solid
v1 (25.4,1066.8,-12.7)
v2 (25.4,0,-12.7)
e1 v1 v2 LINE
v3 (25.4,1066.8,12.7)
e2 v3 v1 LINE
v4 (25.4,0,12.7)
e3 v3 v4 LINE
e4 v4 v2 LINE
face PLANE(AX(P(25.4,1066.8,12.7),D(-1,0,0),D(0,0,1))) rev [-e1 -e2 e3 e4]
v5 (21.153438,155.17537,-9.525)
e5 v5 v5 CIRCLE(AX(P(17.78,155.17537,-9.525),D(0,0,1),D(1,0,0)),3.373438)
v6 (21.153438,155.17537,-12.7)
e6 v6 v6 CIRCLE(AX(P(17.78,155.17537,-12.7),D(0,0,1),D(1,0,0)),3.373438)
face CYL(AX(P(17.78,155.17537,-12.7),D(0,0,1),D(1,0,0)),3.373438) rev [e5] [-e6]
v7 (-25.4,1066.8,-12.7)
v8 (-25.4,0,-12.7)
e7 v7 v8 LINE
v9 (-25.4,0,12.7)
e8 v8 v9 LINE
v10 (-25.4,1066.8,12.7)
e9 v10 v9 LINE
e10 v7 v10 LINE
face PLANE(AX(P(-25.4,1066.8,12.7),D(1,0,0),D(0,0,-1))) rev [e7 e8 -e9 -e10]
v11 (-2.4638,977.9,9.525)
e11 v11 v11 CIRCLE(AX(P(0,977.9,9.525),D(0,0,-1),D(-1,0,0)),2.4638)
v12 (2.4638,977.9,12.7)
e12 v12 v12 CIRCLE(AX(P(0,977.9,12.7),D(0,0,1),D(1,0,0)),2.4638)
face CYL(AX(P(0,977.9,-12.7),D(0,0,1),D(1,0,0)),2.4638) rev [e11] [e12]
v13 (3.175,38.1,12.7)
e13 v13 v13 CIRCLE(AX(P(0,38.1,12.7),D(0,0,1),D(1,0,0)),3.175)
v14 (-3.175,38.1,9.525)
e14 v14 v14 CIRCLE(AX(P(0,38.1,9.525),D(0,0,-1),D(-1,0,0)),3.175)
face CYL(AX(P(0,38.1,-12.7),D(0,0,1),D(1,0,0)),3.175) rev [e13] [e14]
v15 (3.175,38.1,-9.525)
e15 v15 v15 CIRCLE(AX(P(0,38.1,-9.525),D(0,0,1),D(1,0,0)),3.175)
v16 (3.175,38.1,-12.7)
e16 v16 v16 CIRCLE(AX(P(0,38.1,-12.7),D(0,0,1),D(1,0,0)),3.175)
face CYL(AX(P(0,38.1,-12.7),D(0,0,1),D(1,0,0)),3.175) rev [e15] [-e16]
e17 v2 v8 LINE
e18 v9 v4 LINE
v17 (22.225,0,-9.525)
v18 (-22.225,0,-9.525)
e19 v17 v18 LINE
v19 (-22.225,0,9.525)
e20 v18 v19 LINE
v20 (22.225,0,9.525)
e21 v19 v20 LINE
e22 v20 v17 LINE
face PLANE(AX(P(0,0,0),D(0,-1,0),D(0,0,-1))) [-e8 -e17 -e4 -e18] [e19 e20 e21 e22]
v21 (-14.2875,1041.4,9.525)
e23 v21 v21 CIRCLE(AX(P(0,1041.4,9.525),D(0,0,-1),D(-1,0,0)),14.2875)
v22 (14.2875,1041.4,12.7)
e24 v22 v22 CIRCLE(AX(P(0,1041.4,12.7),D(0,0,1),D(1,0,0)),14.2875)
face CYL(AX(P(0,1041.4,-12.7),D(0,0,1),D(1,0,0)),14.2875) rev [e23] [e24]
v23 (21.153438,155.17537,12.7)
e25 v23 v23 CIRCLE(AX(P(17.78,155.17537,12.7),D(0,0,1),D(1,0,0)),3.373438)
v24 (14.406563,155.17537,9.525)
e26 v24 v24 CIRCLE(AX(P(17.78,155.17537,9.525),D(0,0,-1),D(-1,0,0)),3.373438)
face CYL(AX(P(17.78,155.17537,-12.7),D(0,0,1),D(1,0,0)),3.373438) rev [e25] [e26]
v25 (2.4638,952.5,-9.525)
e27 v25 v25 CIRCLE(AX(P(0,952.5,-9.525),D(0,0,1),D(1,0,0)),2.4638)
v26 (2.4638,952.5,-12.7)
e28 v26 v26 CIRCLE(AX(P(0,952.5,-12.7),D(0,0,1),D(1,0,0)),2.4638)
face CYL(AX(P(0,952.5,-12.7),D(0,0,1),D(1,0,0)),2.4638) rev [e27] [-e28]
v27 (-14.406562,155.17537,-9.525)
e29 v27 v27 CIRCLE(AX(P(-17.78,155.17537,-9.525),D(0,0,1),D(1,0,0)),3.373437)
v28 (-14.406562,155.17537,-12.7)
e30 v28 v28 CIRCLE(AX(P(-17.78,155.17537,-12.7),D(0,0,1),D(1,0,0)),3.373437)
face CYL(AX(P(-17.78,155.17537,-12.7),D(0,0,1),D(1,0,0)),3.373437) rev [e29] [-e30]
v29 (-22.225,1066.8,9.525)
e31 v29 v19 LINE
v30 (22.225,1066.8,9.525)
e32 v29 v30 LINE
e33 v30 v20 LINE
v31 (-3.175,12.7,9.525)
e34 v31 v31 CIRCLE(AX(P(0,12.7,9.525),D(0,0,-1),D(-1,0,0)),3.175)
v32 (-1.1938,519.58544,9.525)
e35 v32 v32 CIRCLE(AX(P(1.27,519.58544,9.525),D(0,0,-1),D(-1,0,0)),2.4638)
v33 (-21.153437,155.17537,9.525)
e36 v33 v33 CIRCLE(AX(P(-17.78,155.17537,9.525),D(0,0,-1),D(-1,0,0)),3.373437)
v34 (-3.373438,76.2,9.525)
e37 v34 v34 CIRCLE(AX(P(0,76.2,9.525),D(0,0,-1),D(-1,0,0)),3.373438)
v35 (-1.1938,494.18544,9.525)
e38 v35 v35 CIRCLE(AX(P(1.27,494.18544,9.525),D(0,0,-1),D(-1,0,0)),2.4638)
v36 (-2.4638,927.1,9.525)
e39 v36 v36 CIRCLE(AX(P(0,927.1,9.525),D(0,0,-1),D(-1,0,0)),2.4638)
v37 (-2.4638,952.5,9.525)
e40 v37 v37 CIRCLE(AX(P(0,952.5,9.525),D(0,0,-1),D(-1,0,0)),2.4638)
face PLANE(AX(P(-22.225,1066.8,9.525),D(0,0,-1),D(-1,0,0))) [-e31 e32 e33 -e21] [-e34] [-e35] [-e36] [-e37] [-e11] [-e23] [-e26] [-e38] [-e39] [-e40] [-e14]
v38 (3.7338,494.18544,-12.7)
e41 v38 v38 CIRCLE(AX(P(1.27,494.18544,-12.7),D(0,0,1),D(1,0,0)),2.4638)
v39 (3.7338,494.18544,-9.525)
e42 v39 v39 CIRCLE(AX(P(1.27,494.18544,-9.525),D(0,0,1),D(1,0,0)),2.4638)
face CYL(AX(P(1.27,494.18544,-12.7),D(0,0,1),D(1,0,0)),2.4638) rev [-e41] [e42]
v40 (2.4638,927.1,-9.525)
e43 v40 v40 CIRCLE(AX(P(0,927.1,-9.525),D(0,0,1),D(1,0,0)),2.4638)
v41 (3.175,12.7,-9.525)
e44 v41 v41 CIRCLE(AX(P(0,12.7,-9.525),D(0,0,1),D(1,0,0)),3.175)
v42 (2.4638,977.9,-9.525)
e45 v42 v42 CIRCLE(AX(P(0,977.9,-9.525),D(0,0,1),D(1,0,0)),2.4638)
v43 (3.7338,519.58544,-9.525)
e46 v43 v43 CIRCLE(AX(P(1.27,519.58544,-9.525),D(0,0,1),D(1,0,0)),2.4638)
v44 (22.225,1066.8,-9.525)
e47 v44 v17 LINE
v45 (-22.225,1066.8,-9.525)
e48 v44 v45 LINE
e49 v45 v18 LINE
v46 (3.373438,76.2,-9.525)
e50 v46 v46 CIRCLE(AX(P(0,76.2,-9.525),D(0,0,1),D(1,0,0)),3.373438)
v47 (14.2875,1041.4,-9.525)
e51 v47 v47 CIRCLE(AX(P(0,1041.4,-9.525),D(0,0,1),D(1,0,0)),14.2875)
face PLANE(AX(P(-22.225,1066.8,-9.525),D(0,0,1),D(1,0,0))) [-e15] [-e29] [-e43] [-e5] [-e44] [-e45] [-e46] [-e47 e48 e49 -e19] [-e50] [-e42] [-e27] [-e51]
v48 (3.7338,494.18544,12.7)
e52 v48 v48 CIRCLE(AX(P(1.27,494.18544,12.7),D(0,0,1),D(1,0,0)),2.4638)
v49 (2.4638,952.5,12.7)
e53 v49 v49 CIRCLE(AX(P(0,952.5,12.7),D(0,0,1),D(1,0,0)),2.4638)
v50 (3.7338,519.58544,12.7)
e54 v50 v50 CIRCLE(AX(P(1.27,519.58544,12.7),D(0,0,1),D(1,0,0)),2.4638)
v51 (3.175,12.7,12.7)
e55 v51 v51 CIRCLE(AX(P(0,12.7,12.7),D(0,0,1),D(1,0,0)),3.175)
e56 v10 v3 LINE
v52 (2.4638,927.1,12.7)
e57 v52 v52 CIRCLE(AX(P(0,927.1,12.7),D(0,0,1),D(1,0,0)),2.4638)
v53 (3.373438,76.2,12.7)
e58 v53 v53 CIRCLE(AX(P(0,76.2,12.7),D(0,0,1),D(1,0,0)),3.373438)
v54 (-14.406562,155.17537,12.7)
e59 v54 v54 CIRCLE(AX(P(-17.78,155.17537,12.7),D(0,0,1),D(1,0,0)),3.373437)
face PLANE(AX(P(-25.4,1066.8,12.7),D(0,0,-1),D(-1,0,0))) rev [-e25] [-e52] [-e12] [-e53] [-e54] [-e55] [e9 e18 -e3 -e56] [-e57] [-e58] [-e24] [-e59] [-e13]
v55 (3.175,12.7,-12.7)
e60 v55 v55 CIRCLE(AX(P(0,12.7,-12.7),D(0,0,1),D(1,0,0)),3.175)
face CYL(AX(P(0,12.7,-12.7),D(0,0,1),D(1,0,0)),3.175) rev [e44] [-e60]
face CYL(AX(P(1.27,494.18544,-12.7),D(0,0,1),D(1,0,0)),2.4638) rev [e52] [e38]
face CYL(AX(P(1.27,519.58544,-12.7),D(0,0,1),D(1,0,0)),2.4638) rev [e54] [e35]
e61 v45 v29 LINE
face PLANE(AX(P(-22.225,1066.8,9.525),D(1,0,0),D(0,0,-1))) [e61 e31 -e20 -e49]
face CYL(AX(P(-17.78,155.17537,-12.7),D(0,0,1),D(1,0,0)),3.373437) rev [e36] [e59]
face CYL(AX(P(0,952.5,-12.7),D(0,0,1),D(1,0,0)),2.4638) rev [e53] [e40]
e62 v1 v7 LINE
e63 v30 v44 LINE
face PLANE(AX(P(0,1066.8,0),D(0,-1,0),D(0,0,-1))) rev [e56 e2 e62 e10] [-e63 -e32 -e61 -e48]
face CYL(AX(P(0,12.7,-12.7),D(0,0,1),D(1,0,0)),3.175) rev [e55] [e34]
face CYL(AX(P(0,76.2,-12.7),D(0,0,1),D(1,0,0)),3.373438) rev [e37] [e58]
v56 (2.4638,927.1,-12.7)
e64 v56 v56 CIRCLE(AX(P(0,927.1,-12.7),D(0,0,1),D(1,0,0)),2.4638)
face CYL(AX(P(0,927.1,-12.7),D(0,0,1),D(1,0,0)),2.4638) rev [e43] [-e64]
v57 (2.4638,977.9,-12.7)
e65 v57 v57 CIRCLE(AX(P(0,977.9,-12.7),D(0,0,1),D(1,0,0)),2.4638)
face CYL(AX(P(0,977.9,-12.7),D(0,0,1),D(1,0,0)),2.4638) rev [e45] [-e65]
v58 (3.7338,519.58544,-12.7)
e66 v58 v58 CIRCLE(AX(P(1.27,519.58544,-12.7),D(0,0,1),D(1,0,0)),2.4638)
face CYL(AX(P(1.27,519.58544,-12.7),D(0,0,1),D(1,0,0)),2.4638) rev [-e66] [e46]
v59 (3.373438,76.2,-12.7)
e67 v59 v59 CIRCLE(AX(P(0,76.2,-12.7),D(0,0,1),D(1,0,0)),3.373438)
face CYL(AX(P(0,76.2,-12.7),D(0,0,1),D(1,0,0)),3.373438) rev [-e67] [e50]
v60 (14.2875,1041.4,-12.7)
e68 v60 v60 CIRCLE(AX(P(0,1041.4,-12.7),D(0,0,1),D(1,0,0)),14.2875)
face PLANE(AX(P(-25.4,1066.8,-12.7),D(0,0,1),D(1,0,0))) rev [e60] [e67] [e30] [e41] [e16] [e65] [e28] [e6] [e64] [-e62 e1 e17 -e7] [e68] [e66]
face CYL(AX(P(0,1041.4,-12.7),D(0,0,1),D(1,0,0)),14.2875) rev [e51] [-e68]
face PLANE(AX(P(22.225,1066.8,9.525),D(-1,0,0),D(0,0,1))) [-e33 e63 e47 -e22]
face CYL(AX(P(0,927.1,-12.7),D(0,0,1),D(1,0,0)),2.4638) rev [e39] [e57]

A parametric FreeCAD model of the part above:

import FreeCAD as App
import Part
import Sketcher

V = App.Vector
Q = App.Units.Quantity

doc = App.newDocument("Part")
body = doc.addObject("PartDesign::Body", "Body")

# Sketch on XZ plane
sketch1 = body.newObject("Sketcher::SketchObject", "Sketch")
sketch1.AttachmentSupport = (doc.getObject("XZ_Plane"), [""])
sketch1.MapMode = "FlatFace"
sketch1.addGeometry([
    Part.LineSegment(V(-25, -13, 0), V(-25, 13, 0)),  # 0
    Part.LineSegment(V(-25, 13, 0), V(25, 13, 0)),  # 1
    Part.LineSegment(V(25, 13, 0), V(25, -13, 0)),  # 2
    Part.LineSegment(V(25, -13, 0), V(-25, -13, 0)),  # 3
    Part.LineSegment(V(22, 10, 0), V(-22, 10, 0)),  # 4
    Part.LineSegment(V(-22, 10, 0), V(-22, -10, 0)),  # 5
    Part.LineSegment(V(-22, -10, 0), V(22, -10, 0)),  # 6
    Part.LineSegment(V(22, -10, 0), V(22, 10, 0)),  # 7
], False)
sketch1.addConstraint([
    Sketcher.Constraint("Coincident", 0, 2, 1, 1),
    Sketcher.Constraint("Coincident", 1, 2, 2, 1),
    Sketcher.Constraint("Coincident", 2, 2, 3, 1),
    Sketcher.Constraint("Coincident", 3, 2, 0, 1),
    Sketcher.Constraint("Coincident", 4, 2, 5, 1),
    Sketcher.Constraint("Coincident", 5, 2, 6, 1),
    Sketcher.Constraint("Coincident", 6, 2, 7, 1),
    Sketcher.Constraint("Coincident", 7, 2, 4, 1),
    Sketcher.Constraint("Vertical", 0),
    Sketcher.Constraint("Horizontal", 1),
    Sketcher.Constraint("Vertical", 2),
    Sketcher.Constraint("Horizontal", 3),
    Sketcher.Constraint("Horizontal", 4),
    Sketcher.Constraint("Vertical", 5),
    Sketcher.Constraint("Horizontal", 6),
    Sketcher.Constraint("Vertical", 7),
    Sketcher.Constraint("Symmetric", 0, 2, 2, 2, -1, 1),
    Sketcher.Constraint("Symmetric", 4, 2, 6, 2, -1, 1),
    Sketcher.Constraint("DistanceX", 1, 1, 1, 2, Q("2 in")),
    Sketcher.Constraint("DistanceY", 0, 1, 0, 2, Q("1 in")),
    Sketcher.Constraint("DistanceX", 4, 2, 4, 1, Q("1.75 in")),
    Sketcher.Constraint("DistanceY", 5, 2, 5, 1, Q("0.75 in")),
])
pad1 = body.newObject("PartDesign::Pad", "Pad")
pad1.Profile = sketch1
pad1.Length = Q("42 in")
pad1.Reversed = True

# Sketch on XY plane
sketch2 = body.newObject("Sketcher::SketchObject", "Sketch001")
sketch2.AttachmentSupport = (doc.getObject("XY_Plane"), [""])
sketch2.MapMode = "FlatFace"
sketch2.AttachmentOffset = App.Placement(V(0, 0, 0.5 * 25.4), App.Rotation())
sketch2.addGeometry(Part.Circle(V(0, 1041, 0), V(0, 0, 1), 14), False)
sketch2.addConstraint([
    Sketcher.Constraint("PointOnObject", 0, 3, -2),
    Sketcher.Constraint("Diameter", 0, Q("1.125 in")),
    Sketcher.Constraint("DistanceY", -1, 1, 0, 3, Q("41 in")),
])
pocket1 = body.newObject("PartDesign::Pocket", "Pocket")
pocket1.Profile = sketch2
pocket1.Type = "ThroughAll"

# Sketch on XY plane
sketch3 = body.newObject("Sketcher::SketchObject", "Sketch002")
sketch3.AttachmentSupport = (doc.getObject("XY_Plane"), [""])
sketch3.MapMode = "FlatFace"
sketch3.AttachmentOffset = App.Placement(V(0, 0, 0.5 * 25.4), App.Rotation())
sketch3.addGeometry([
    Part.Circle(V(0, 12.7, 0), V(0, 0, 1), 3.2),
    Part.Circle(V(0, 38.1, 0), V(0, 0, 1), 3.2),
], False)
sketch3.addConstraint([
    Sketcher.Constraint("Equal", 0, 1),
    Sketcher.Constraint("PointOnObject", 0, 3, -2),
    Sketcher.Constraint("PointOnObject", 1, 3, -2),
    Sketcher.Constraint("Diameter", 0, Q("0.25 in")),
    Sketcher.Constraint("DistanceY", 0, 3, 1, 3, Q("1 in")),
    Sketcher.Constraint("DistanceY", -1, 1, 0, 3, Q("0.5 in")),
])
pocket2 = body.newObject("PartDesign::Pocket", "Pocket001")
pocket2.Profile = sketch3
pocket2.Type = "ThroughAll"

# Sketch on XY plane
sketch4 = body.newObject("Sketcher::SketchObject", "Sketch003")
sketch4.AttachmentSupport = (doc.getObject("XY_Plane"), [""])
sketch4.MapMode = "FlatFace"
sketch4.AttachmentOffset = App.Placement(V(0, 0, 0.5 * 25.4), App.Rotation())
sketch4.addGeometry([
    Part.Circle(V(0, 977.9, 0), V(0, 0, 1), 2.5),  # 0
    Part.Circle(V(0, 952.5, 0), V(0, 0, 1), 2.5),  # 1
    Part.Circle(V(0, 927.1, 0), V(0, 0, 1), 2.5),  # 2
    Part.Circle(V(1.3, 519.6, 0), V(0, 0, 1), 2.5),  # 3
    Part.Circle(V(1.3, 494.2, 0), V(0, 0, 1), 2.5),  # 4
], False)
sketch4.addConstraint([
    Sketcher.Constraint("Equal", 0, 1),
    Sketcher.Constraint("Equal", 1, 2),
    Sketcher.Constraint("Equal", 2, 3),
    Sketcher.Constraint("Equal", 3, 4),
    Sketcher.Constraint("PointOnObject", 0, 3, -2),
    Sketcher.Constraint("PointOnObject", 1, 3, -2),
    Sketcher.Constraint("PointOnObject", 2, 3, -2),
    Sketcher.Constraint("Vertical", 3, 3, 4, 3),
    Sketcher.Constraint("Diameter", 0, Q("0.194 in")),
    Sketcher.Constraint("DistanceY", 1, 3, 0, 3, Q("1 in")),
    Sketcher.Constraint("DistanceY", 2, 3, 1, 3, Q("1 in")),
    Sketcher.Constraint("DistanceY", 4, 3, 3, 3, Q("1 in")),
    Sketcher.Constraint("DistanceY", -1, 1, 0, 3, Q("38.5 in")),
    Sketcher.Constraint("DistanceX", -1, 1, 3, 3, Q("0.05 in")),
    Sketcher.Constraint("DistanceY", -1, 1, 3, 3, Q("519.58544 mm")),
])
pocket3 = body.newObject("PartDesign::Pocket", "Pocket002")
pocket3.Profile = sketch4
pocket3.Type = "ThroughAll"

# Sketch on XY plane
sketch5 = body.newObject("Sketcher::SketchObject", "Sketch004")
sketch5.AttachmentSupport = (doc.getObject("XY_Plane"), [""])
sketch5.MapMode = "FlatFace"
sketch5.AttachmentOffset = App.Placement(V(0, 0, 0.5 * 25.4), App.Rotation())
sketch5.addGeometry(Part.Circle(V(0, 76.2, 0), V(0, 0, 1), 3.4), False)
sketch5.addConstraint([
    Sketcher.Constraint("PointOnObject", 0, 3, -2),
    Sketcher.Constraint("Diameter", 0, Q("0.265625 in")),
    Sketcher.Constraint("DistanceY", -1, 1, 0, 3, Q("3 in")),
])
pocket4 = body.newObject("PartDesign::Pocket", "Pocket003")
pocket4.Profile = sketch5
pocket4.Type = "ThroughAll"

# Sketch on XY plane
sketch6 = body.newObject("Sketcher::SketchObject", "Sketch005")
sketch6.AttachmentSupport = (doc.getObject("XY_Plane"), [""])
sketch6.MapMode = "FlatFace"
sketch6.AttachmentOffset = App.Placement(V(0, 0, 0.5 * 25.4), App.Rotation())
sketch6.addGeometry([
    Part.Circle(V(-17.8, 155.2, 0), V(0, 0, 1), 3.4),
    Part.Circle(V(17.8, 155.2, 0), V(0, 0, 1), 3.4),
], False)
sketch6.addConstraint([
    Sketcher.Constraint("Equal", 0, 1),
    Sketcher.Constraint("Symmetric", 0, 3, 1, 3, -2),
    Sketcher.Constraint("Diameter", 0, Q("0.265625 in")),
    Sketcher.Constraint("DistanceX", 0, 3, -1, 1, Q("0.7 in")),
    Sketcher.Constraint("DistanceY", -1, 1, 0, 3, Q("155.17537 mm")),
])
pocket5 = body.newObject("PartDesign::Pocket", "Pocket004")
pocket5.Profile = sketch6
pocket5.Type = "ThroughAll"

doc.recompute()
